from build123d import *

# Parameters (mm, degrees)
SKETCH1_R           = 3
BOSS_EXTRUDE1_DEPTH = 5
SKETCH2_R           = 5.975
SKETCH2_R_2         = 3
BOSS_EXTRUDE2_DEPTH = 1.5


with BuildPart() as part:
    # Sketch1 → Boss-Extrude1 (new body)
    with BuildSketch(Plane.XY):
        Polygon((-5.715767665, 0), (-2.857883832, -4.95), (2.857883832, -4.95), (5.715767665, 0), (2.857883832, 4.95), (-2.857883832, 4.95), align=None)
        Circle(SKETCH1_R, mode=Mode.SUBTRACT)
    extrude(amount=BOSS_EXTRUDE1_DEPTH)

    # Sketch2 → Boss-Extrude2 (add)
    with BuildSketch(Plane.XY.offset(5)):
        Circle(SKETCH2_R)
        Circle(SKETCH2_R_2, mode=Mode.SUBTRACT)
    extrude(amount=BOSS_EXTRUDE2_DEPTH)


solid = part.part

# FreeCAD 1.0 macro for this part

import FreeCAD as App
import Part
import Sketcher

V = App.Vector
Q = App.Units.Quantity


def add_polygon(sketch, points):
    """Adds a closed chain of lines whose ends are joined by coincident constraints."""
    first, n = sketch.GeometryCount, len(points)
    for a, b in zip(points, points[1:] + points[:1]):
        sketch.addGeometry(Part.LineSegment(App.Vector(*a, 0), App.Vector(*b, 0)), False)
    for i in range(n):
        sketch.addConstraint(Sketcher.Constraint("Coincident", first + i, 2, first + (i + 1) % n, 1))

doc = App.newDocument("Part")
body = doc.addObject("PartDesign::Body", "Body")

# Sketch on XY plane
sketch1 = body.newObject("Sketcher::SketchObject", "Sketch")
sketch1.AttachmentSupport = (doc.getObject("XY_Plane"), [""])
sketch1.MapMode = "FlatFace"
add_polygon(sketch1, [(-5.7, 0), (-2.9, -5), (2.9, -5), (5.7, 0), (2.9, 5), (-2.9, 5)])  # lines 0-5
sketch1.addGeometry(Part.Circle(V(0, 0, 0), V(0, 0, 1), 3), False)  # 6
sketch1.addConstraint([
    Sketcher.Constraint("Horizontal", 1),
    Sketcher.Constraint("Horizontal", 4),
    Sketcher.Constraint("Coincident", 6, 3, -1, 1),
    Sketcher.Constraint("Symmetric", 0, 2, 3, 2, -1, 1),
    Sketcher.Constraint("Symmetric", 2, 2, 5, 2, -1, 1),
    Sketcher.Constraint("PointOnObject", 2, 2, -1),
    Sketcher.Constraint("Parallel", 2, 5),
    Sketcher.Constraint("Vertical", 1, 2, 3, 2),
    Sketcher.Constraint("Diameter", 6, 6.0),
    Sketcher.Constraint("Angle", 0, Q("-60 deg")),
    Sketcher.Constraint("DistanceY", 1, 2, 3, 2, 9.9),
    Sketcher.Constraint("DistanceX", 1, 1, 1, 2, 5.715768),
])
pad1 = body.newObject("PartDesign::Pad", "Pad")
pad1.Profile = sketch1
pad1.Length = 5

# Sketch on XY plane
sketch2 = body.newObject("Sketcher::SketchObject", "Sketch001")
sketch2.AttachmentSupport = (doc.getObject("XY_Plane"), [""])
sketch2.MapMode = "FlatFace"
sketch2.AttachmentOffset = App.Placement(V(0, 0, 5), App.Rotation())
sketch2.addGeometry([
    Part.Circle(V(0, 0, 0), V(0, 0, 1), 6),
    Part.Circle(V(0, 0, 0), V(0, 0, 1), 3),
], False)
sketch2.addConstraint([
    Sketcher.Constraint("Coincident", 0, 3, -1, 1),
    Sketcher.Constraint("Coincident", 1, 3, -1, 1),
    Sketcher.Constraint("Diameter", 1, 6.0),
    Sketcher.Constraint("Diameter", 0, 11.95),
])
pad2 = body.newObject("PartDesign::Pad", "Pad001")
pad2.Profile = sketch2
pad2.Length = 1.5

doc.recompute()
